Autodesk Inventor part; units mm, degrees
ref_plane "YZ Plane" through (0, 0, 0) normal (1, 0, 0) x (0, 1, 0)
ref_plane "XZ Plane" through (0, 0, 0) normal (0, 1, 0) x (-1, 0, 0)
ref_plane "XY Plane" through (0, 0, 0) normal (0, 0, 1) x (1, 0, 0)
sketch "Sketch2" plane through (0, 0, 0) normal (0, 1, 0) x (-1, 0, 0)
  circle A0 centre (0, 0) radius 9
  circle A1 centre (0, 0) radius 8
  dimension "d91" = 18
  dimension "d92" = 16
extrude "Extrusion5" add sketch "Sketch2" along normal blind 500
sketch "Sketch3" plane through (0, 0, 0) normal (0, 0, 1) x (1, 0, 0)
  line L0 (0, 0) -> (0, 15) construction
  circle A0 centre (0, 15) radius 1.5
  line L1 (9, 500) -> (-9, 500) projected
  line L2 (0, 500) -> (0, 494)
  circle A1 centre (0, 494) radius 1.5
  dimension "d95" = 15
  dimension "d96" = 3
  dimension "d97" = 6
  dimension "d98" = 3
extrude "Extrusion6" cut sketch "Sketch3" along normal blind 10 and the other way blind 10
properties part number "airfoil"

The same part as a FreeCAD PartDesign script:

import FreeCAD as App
import Part
import Sketcher

V = App.Vector

doc = App.newDocument("Part")
params = doc.addObject("Spreadsheet::Sheet", "Params")
for row, (alias, value) in enumerate([
    ("sketch1_diameter", "18 mm"),
    ("sketch1_diameter2", "16 mm"),
    ("pad1_length", "500 mm"),
    ("sketch2_diameter", "3 mm"),
], start=1):
    params.set(f"A{row}", alias)
    params.set(f"B{row}", "=" + value)
    params.setAlias(f"B{row}", alias)

body = doc.addObject("PartDesign::Body", "Body")

# Sketch on XZ plane
sketch1 = body.newObject("Sketcher::SketchObject", "Sketch")
sketch1.AttachmentSupport = (doc.getObject("XZ_Plane"), [""])
sketch1.MapMode = "FlatFace"
sketch1.addGeometry([
    Part.Circle(V(0, 0, 0), V(0, 0, 1), 9),
    Part.Circle(V(0, 0, 0), V(0, 0, 1), 8),
], False)
sketch1.addConstraint([
    Sketcher.Constraint("Coincident", 0, 3, -1, 1),
    Sketcher.Constraint("Coincident", 1, 3, -1, 1),
    Sketcher.Constraint("Diameter", 0, 18.0),
    Sketcher.Constraint("Diameter", 1, 16.0),
])
sketch1.setExpression("Constraints[2]", "Params.sketch1_diameter")
sketch1.setExpression("Constraints[3]", "Params.sketch1_diameter2")
pad1 = body.newObject("PartDesign::Pad", "Pad")
pad1.Profile = sketch1
pad1.setExpression("Length", "Params.pad1_length")
pad1.Reversed = True

# Sketch on XY plane
sketch2 = body.newObject("Sketcher::SketchObject", "Sketch001")
sketch2.AttachmentSupport = (doc.getObject("XY_Plane"), [""])
sketch2.MapMode = "FlatFace"
sketch2.addGeometry([
    Part.Circle(V(0, 15, 0), V(0, 0, 1), 1.5),
    Part.Circle(V(0, 494, 0), V(0, 0, 1), 1.5),
], False)
sketch2.addConstraint([
    Sketcher.Constraint("Equal", 0, 1),
    Sketcher.Constraint("PointOnObject", 0, 3, -2),
    Sketcher.Constraint("PointOnObject", 1, 3, -2),
    Sketcher.Constraint("Diameter", 0, 3.0),
    Sketcher.Constraint("DistanceY", -1, 1, 0, 3, 15.0),
    Sketcher.Constraint("DistanceY", -1, 1, 1, 3, 494.0),
])
sketch2.setExpression("Constraints[3]", "Params.sketch2_diameter")
pocket1 = body.newObject("PartDesign::Pocket", "Pocket")
pocket1.Profile = sketch2
pocket1.Type = "ThroughAll"
pocket1.Midplane = True

doc.recompute()
